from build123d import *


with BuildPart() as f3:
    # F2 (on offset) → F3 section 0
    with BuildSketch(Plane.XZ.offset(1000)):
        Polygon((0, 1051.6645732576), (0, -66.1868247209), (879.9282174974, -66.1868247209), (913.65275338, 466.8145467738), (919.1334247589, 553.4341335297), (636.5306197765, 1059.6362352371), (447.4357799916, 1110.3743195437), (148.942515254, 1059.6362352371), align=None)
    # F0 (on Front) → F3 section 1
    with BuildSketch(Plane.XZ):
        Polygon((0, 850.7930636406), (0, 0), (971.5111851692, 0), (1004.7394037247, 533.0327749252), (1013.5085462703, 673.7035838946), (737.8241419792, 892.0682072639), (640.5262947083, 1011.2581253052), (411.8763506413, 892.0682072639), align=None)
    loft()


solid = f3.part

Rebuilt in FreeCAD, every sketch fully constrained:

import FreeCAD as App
import Part
import Sketcher

doc = App.newDocument("Part")
body = doc.addObject("PartDesign::Body", "Body")

sketch1 = doc.addObject("Sketcher::SketchObject", "Sketch")
body.addObject(sketch1)
sketch1.AttachmentSupport = (doc.XZ_Plane, [""])
sketch1.MapMode = "FlatFace"
sketch1.AttachmentOffset = App.Placement(App.Vector(0, 0, 1000), App.Rotation())
sketch1.addGeometry([
    Part.LineSegment(App.Vector(0, 1051.664573, 0), App.Vector(0, -66.186825, 0)),
    Part.LineSegment(App.Vector(0, -66.186825, 0), App.Vector(879.928217, -66.186825, 0)),
    Part.LineSegment(App.Vector(879.928217, -66.186825, 0), App.Vector(919.133425, 553.434134, 0)),
    Part.LineSegment(App.Vector(919.133425, 553.434134, 0), App.Vector(636.53062, 1059.636235, 0)),
    Part.LineSegment(App.Vector(636.53062, 1059.636235, 0), App.Vector(447.43578, 1110.37432, 0)),
    Part.LineSegment(App.Vector(447.43578, 1110.37432, 0), App.Vector(148.942515, 1059.636235, 0)),
    Part.LineSegment(App.Vector(148.942515, 1059.636235, 0), App.Vector(0, 1051.664573, 0)),
], False)
sketch1.addConstraint([
    Sketcher.Constraint("Coincident", 0, 2, 1, 1),
    Sketcher.Constraint("Coincident", 1, 2, 2, 1),
    Sketcher.Constraint("Coincident", 2, 2, 3, 1),
    Sketcher.Constraint("Coincident", 3, 2, 4, 1),
    Sketcher.Constraint("Coincident", 4, 2, 5, 1),
    Sketcher.Constraint("Coincident", 5, 2, 6, 1),
    Sketcher.Constraint("Coincident", 6, 2, 0, 1),
    Sketcher.Constraint("Vertical", 0),
    Sketcher.Constraint("Horizontal", 1),
    Sketcher.Constraint("PointOnObject", 0, 2, -2),
    Sketcher.Constraint("Horizontal", 3, 2, 5, 2),
    Sketcher.Constraint("DistanceY", 2, 2, 3, 2, 506.202102),
    Sketcher.Constraint("Distance", 3, 579.745559),
    Sketcher.Constraint("Distance", 6, 149.155691),
    Sketcher.Constraint("DistanceX", 1, 1, 1, 2, 879.928217),
    Sketcher.Constraint("DistanceY", 0, 2, 0, 1, 1117.851398),
    Sketcher.Constraint("DistanceX", -1, 1, 3, 2, 636.53062),
    Sketcher.Constraint("DistanceX", -1, 1, 4, 2, 447.43578),
    Sketcher.Constraint("DistanceY", -1, 1, 4, 2, 1110.37432),
    Sketcher.Constraint("DistanceY", 1, 2, 2, 2, 619.620958),
    Sketcher.Constraint("Distance", 4, 195.783584),
])

sketch2 = doc.addObject("Sketcher::SketchObject", "Sketch001")
body.addObject(sketch2)
sketch2.AttachmentSupport = (doc.XZ_Plane, [""])
sketch2.MapMode = "FlatFace"
sketch2.addGeometry([
    Part.LineSegment(App.Vector(0, 850.793064, 0), App.Vector(0, 0, 0)),
    Part.LineSegment(App.Vector(0, 0, 0), App.Vector(971.511185, 0, 0)),
    Part.LineSegment(App.Vector(971.511185, 0, 0), App.Vector(1013.508546, 673.703584, 0)),
    Part.LineSegment(App.Vector(1013.508546, 673.703584, 0), App.Vector(737.824142, 892.068207, 0)),
    Part.LineSegment(App.Vector(737.824142, 892.068207, 0), App.Vector(640.526295, 1011.258125, 0)),
    Part.LineSegment(App.Vector(640.526295, 1011.258125, 0), App.Vector(411.876351, 892.068207, 0)),
    Part.LineSegment(App.Vector(411.876351, 892.068207, 0), App.Vector(0, 850.793064, 0)),
], False)
sketch2.addConstraint([
    Sketcher.Constraint("Coincident", 0, 2, 1, 1),
    Sketcher.Constraint("Coincident", 1, 2, 2, 1),
    Sketcher.Constraint("Coincident", 2, 2, 3, 1),
    Sketcher.Constraint("Coincident", 3, 2, 4, 1),
    Sketcher.Constraint("Coincident", 4, 2, 5, 1),
    Sketcher.Constraint("Coincident", 5, 2, 6, 1),
    Sketcher.Constraint("Coincident", 6, 2, 0, 1),
    Sketcher.Constraint("Vertical", 0),
    Sketcher.Constraint("Horizontal", 1),
    Sketcher.Constraint("Coincident", 0, 2, -1, 1),
    Sketcher.Constraint("Horizontal", 3, 2, 5, 2),
    Sketcher.Constraint("Distance", 2, 675.011331),
    Sketcher.Constraint("DistanceX", 1, 1, 1, 2, 971.511185),
    Sketcher.Constraint("DistanceY", 0, 2, 0, 1, 850.793064),
    Sketcher.Constraint("DistanceX", -1, 1, 3, 2, 737.824142),
    Sketcher.Constraint("DistanceX", -1, 1, 5, 2, 411.876351),
    Sketcher.Constraint("DistanceX", 1, 2, 2, 2, 41.997361),
    Sketcher.Constraint("DistanceY", 3, 2, 4, 2, 119.189918),
    Sketcher.Constraint("DistanceX", 4, 2, 2, 2, 372.982252),
    Sketcher.Constraint("DistanceY", 2, 2, 4, 2, 337.554541),
])

additiveloft = doc.addObject("PartDesign::AdditiveLoft", "AdditiveLoft")
body.addObject(additiveloft)
additiveloft.Profile = sketch1
additiveloft.Sections = [sketch2]

doc.recompute()
